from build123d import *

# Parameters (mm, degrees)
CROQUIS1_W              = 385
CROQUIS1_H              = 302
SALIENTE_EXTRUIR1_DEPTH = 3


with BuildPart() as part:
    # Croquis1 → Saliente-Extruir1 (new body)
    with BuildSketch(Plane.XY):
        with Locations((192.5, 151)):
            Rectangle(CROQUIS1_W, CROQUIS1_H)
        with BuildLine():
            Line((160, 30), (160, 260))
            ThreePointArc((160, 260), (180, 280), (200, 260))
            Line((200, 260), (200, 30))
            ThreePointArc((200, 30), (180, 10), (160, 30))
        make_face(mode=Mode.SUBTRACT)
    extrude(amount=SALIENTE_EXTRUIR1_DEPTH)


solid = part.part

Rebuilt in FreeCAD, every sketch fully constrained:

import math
import FreeCAD as App
import Part
import Sketcher
Q = App.Units.Quantity

doc = App.newDocument("Part")
body = doc.addObject("PartDesign::Body", "Body")

sketch1 = doc.addObject("Sketcher::SketchObject", "Sketch")
body.addObject(sketch1)
sketch1.AttachmentSupport = (doc.XY_Plane, [""])
sketch1.MapMode = "FlatFace"
sketch1.addGeometry([
    Part.LineSegment(App.Vector(0, 302, 0), App.Vector(0, 0, 0)),
    Part.LineSegment(App.Vector(0, 0, 0), App.Vector(385, 0, 0)),
    Part.LineSegment(App.Vector(385, 0, 0), App.Vector(385, 302, 0)),
    Part.LineSegment(App.Vector(385, 302, 0), App.Vector(0, 302, 0)),
    Part.ArcOfCircle(Part.Circle(App.Vector(180, 30, 0), App.Vector(0, 0, 1), 20), math.radians(180), math.radians(360)),
    Part.LineSegment(App.Vector(160, 30, 0), App.Vector(160, 260, 0)),
    Part.ArcOfCircle(Part.Circle(App.Vector(180, 260, 0), App.Vector(0, 0, 1), 20), math.radians(0), math.radians(180)),
    Part.LineSegment(App.Vector(200, 260, 0), App.Vector(200, 30, 0)),
], False)
sketch1.addConstraint([
    Sketcher.Constraint("Coincident", 0, 2, 1, 1),
    Sketcher.Constraint("Coincident", 1, 2, 2, 1),
    Sketcher.Constraint("Coincident", 2, 2, 3, 1),
    Sketcher.Constraint("Coincident", 3, 2, 0, 1),
    Sketcher.Constraint("Tangent", 4, 1, 5, 1),
    Sketcher.Constraint("Tangent", 5, 2, 6, 2),
    Sketcher.Constraint("Tangent", 6, 1, 7, 1),
    Sketcher.Constraint("Tangent", 7, 2, 4, 2),
    Sketcher.Constraint("Vertical", 0),
    Sketcher.Constraint("Horizontal", 1),
    Sketcher.Constraint("Vertical", 2),
    Sketcher.Constraint("Horizontal", 3),
    Sketcher.Constraint("Vertical", 5),
    Sketcher.Constraint("Vertical", 7),
    Sketcher.Constraint("Coincident", 0, 2, -1, 1),
    Sketcher.Constraint("Radius", 4, Q("20 mm")),
    Sketcher.Constraint("DistanceX", 1, 1, 1, 2, Q("385 mm")),
    Sketcher.Constraint("DistanceY", 0, 2, 0, 1, Q("302 mm")),
    Sketcher.Constraint("DistanceY", 5, 1, 5, 2, Q("230 mm")),
    Sketcher.Constraint("DistanceX", -1, 1, 4, 3, Q("180 mm")),
    Sketcher.Constraint("DistanceY", -1, 1, 4, 3, Q("30 mm")),
])
pad1 = doc.addObject("PartDesign::Pad", "Pad")
body.addObject(pad1)
pad1.Profile = sketch1
pad1.Length = 3

doc.recompute()
